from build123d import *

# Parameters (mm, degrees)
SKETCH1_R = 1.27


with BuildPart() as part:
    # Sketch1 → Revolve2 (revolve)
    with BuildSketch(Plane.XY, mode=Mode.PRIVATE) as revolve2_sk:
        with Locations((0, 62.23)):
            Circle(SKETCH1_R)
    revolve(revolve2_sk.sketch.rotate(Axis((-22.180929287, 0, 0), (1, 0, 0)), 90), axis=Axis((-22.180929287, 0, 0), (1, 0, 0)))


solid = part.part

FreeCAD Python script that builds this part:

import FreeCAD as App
import Part
import Sketcher
Q = App.Units.Quantity

doc = App.newDocument("Part")
body = doc.addObject("PartDesign::Body", "Body")

# Sketch on XY plane
sketch1 = body.newObject("Sketcher::SketchObject", "Sketch")
sketch1.AttachmentSupport = (doc.getObject("XY_Plane"), [""])
sketch1.MapMode = "FlatFace"
sketch1.addGeometry(Part.Circle(App.Vector(0, 62.23, 0), App.Vector(0, 0, 1), 1.27), False)
sketch1.addConstraint([
    Sketcher.Constraint("PointOnObject", 0, 3, -2),
    Sketcher.Constraint("Diameter", 0, Q("0.1 in")),
    Sketcher.Constraint("DistanceY", -1, 1, 0, 3, Q("2.45 in")),
])
revolution = body.newObject("PartDesign::Revolution", "Revolution")
revolution.Profile = sketch1
revolution.ReferenceAxis = (sketch1, ["H_Axis"])
revolution.Angle = 360

doc.recompute()
